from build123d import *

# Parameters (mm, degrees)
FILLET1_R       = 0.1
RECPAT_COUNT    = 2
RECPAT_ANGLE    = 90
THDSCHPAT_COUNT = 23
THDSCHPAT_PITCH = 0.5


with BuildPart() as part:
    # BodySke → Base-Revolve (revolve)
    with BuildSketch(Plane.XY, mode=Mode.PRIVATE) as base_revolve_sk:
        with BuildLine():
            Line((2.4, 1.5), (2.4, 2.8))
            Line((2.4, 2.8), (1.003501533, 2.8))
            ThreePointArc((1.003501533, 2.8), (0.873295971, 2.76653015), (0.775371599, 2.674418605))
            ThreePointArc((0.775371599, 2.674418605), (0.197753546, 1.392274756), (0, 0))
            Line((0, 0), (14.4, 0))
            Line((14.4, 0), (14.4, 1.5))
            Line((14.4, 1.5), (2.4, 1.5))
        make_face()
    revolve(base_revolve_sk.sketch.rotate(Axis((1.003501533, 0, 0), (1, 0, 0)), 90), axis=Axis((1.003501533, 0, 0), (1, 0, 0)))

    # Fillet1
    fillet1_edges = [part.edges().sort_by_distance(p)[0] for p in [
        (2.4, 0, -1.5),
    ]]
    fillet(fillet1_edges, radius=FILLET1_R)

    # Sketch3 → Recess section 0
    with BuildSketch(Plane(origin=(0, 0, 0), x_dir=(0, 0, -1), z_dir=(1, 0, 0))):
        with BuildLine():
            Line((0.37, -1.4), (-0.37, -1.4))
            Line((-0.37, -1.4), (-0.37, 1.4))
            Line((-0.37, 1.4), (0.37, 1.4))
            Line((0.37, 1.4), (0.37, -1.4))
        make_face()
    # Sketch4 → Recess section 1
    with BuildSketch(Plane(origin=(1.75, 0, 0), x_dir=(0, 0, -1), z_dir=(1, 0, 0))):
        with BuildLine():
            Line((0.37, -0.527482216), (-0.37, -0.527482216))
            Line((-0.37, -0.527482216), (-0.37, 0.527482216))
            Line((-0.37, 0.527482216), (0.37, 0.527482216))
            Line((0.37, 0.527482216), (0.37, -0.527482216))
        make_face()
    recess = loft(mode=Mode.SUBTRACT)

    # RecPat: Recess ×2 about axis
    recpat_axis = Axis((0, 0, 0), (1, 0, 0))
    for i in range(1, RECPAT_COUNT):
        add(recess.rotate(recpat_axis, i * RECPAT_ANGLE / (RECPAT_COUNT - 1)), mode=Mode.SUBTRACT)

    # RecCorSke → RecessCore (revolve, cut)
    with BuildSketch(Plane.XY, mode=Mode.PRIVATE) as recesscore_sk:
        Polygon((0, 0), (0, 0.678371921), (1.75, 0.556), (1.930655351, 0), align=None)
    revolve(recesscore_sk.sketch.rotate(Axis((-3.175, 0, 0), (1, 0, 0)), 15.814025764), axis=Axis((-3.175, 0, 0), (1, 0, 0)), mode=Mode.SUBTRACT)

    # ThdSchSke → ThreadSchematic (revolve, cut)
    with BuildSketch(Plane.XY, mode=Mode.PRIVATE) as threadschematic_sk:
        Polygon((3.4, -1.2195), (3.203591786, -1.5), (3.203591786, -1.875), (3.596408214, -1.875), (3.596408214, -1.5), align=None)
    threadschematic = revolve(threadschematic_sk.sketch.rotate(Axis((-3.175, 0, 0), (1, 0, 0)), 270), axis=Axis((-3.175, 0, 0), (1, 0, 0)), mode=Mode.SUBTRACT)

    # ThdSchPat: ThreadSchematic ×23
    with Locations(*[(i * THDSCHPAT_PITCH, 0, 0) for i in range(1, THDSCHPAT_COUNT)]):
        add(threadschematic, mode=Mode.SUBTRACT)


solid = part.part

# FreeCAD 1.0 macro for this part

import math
import FreeCAD as App
import Part
import Sketcher
from FreeCAD import Vector
Q = App.Units.Quantity


def edges_at(feature, points):
    """Names of the edges that pass closest to the given points."""
    edges = feature.Shape.Edges
    near = lambda p: min(range(len(edges)), key=lambda i: edges[i].distToShape(Part.Vertex(*p))[0])
    return sorted({f"Edge{near(p) + 1}" for p in points})

doc = App.newDocument("Part")
body = doc.addObject("PartDesign::Body", "Body")

sketch1 = body.newObject("Sketcher::SketchObject", "Sketch")
sketch1.AttachmentSupport = (doc.getObject("XY_Plane"), [""])
sketch1.MapMode = "FlatFace"
sketch1.addGeometry([
    Part.LineSegment(Vector(2.4, 1.5, 0), Vector(2.4, 2.8, 0)),
    Part.LineSegment(Vector(2.4, 2.8, 0), Vector(1.003502, 2.8, 0)),
    Part.ArcOfCircle(Part.Circle(Vector(1.003502, 2.53, 0), Vector(0, 0, 1), 0.27), math.radians(90), math.radians(147.663974)),
    Part.ArcOfCircle(Part.Circle(Vector(5, 0, 0), Vector(0, 0, 1), 5), math.radians(147.663974), math.radians(180)),
    Part.LineSegment(Vector(0, 0, 0), Vector(14.4, 0, 0)),
    Part.LineSegment(Vector(14.4, 0, 0), Vector(14.4, 1.5, 0)),
    Part.LineSegment(Vector(14.4, 1.5, 0), Vector(2.4, 1.5, 0)),
], False)
sketch1.addConstraint([
    Sketcher.Constraint("Coincident", 0, 2, 1, 1),
    Sketcher.Constraint("Tangent", 1, 2, 2, 1),
    Sketcher.Constraint("Tangent", 2, 2, 3, 1),
    Sketcher.Constraint("Coincident", 3, 2, 4, 1),
    Sketcher.Constraint("Coincident", 4, 2, 5, 1),
    Sketcher.Constraint("Coincident", 5, 2, 6, 1),
    Sketcher.Constraint("Coincident", 6, 2, 0, 1),
    Sketcher.Constraint("Vertical", 0),
    Sketcher.Constraint("Horizontal", 1),
    Sketcher.Constraint("Horizontal", 4),
    Sketcher.Constraint("Vertical", 5),
    Sketcher.Constraint("Horizontal", 6),
    Sketcher.Constraint("Coincident", 3, 2, -1, 1),
    Sketcher.Constraint("PointOnObject", 3, 3, -1),
    Sketcher.Constraint("Radius", 3, Q("5 mm")),
    Sketcher.Constraint("DistanceX", 6, 2, 6, 1, Q("12 mm")),
    Sketcher.Constraint("Radius", 2, Q("0.27 mm")),
    Sketcher.Constraint("DistanceX", 4, 1, 4, 2, Q("14.4 mm")),
    Sketcher.Constraint("DistanceY", 0, 1, 0, 2, Q("1.3 mm")),
    Sketcher.Constraint("DistanceY", 5, 1, 5, 2, Q("1.5 mm")),
])
revolution = body.newObject("PartDesign::Revolution", "Revolution")
revolution.Profile = sketch1
revolution.ReferenceAxis = (sketch1, ["H_Axis"])
revolution.Angle = 360
doc.recompute()

fillet = body.newObject("PartDesign::Fillet", "Fillet")
fillet.Base = (revolution, edges_at(revolution, [(2.4, 0, -1.5)]))
fillet.Radius = 0.1

sketch2 = body.newObject("Sketcher::SketchObject", "Sketch001")
sketch2.AttachmentSupport = (doc.getObject("YZ_Plane"), [""])
sketch2.MapMode = "FlatFace"
sketch2.addGeometry([
    Part.LineSegment(Vector(-1.4, 0.37, 0), Vector(-1.4, -0.37, 0)),
    Part.LineSegment(Vector(-1.4, -0.37, 0), Vector(1.4, -0.37, 0)),
    Part.LineSegment(Vector(1.4, -0.37, 0), Vector(1.4, 0.37, 0)),
    Part.LineSegment(Vector(1.4, 0.37, 0), Vector(-1.4, 0.37, 0)),
], False)
sketch2.addConstraint([
    Sketcher.Constraint("Coincident", 0, 2, 1, 1),
    Sketcher.Constraint("Coincident", 1, 2, 2, 1),
    Sketcher.Constraint("Coincident", 2, 2, 3, 1),
    Sketcher.Constraint("Coincident", 3, 2, 0, 1),
    Sketcher.Constraint("Vertical", 0),
    Sketcher.Constraint("Horizontal", 1),
    Sketcher.Constraint("Vertical", 2),
    Sketcher.Constraint("Horizontal", 3),
    Sketcher.Constraint("Symmetric", 0, 2, 2, 2, -1, 1),
    Sketcher.Constraint("DistanceX", 1, 1, 1, 2, Q("2.8 mm")),
    Sketcher.Constraint("DistanceY", 0, 2, 0, 1, Q("0.74 mm")),
])

sketch3 = body.newObject("Sketcher::SketchObject", "Sketch002")
sketch3.AttachmentSupport = (doc.getObject("YZ_Plane"), [""])
sketch3.MapMode = "FlatFace"
sketch3.AttachmentOffset = App.Placement(Vector(0, 0, 1.75), App.Rotation())
sketch3.addGeometry([
    Part.LineSegment(Vector(-0.527482, 0.37, 0), Vector(-0.527482, -0.37, 0)),
    Part.LineSegment(Vector(-0.527482, -0.37, 0), Vector(0.527482, -0.37, 0)),
    Part.LineSegment(Vector(0.527482, -0.37, 0), Vector(0.527482, 0.37, 0)),
    Part.LineSegment(Vector(0.527482, 0.37, 0), Vector(-0.527482, 0.37, 0)),
], False)
sketch3.addConstraint([
    Sketcher.Constraint("Coincident", 0, 2, 1, 1),
    Sketcher.Constraint("Coincident", 1, 2, 2, 1),
    Sketcher.Constraint("Coincident", 2, 2, 3, 1),
    Sketcher.Constraint("Coincident", 3, 2, 0, 1),
    Sketcher.Constraint("Vertical", 0),
    Sketcher.Constraint("Horizontal", 1),
    Sketcher.Constraint("Vertical", 2),
    Sketcher.Constraint("Horizontal", 3),
    Sketcher.Constraint("Symmetric", 0, 2, 2, 2, -1, 1),
    Sketcher.Constraint("DistanceY", 0, 2, 0, 1, Q("0.74 mm")),
    Sketcher.Constraint("DistanceX", 1, 1, 1, 2, Q("1.054964 mm")),
])

subtractiveloft = body.newObject("PartDesign::SubtractiveLoft", "SubtractiveLoft")
subtractiveloft.Profile = sketch2
subtractiveloft.Sections = [sketch3]
doc.recompute()

polarpattern = body.newObject("PartDesign::PolarPattern", "PolarPattern")
polarpattern.Originals = [subtractiveloft]
polarpattern.Axis = (doc.getObject("X_Axis"), [""])
polarpattern.Angle = 90
polarpattern.Occurrences = 2
body.Tip = polarpattern

sketch4 = body.newObject("Sketcher::SketchObject", "Sketch003")
sketch4.AttachmentSupport = (doc.getObject("XY_Plane"), [""])
sketch4.MapMode = "FlatFace"
sketch4.addGeometry([
    Part.LineSegment(Vector(0, 0.678372, 0), Vector(0, 0, 0)),
    Part.LineSegment(Vector(0, 0, 0), Vector(1.930655, 0, 0)),
    Part.LineSegment(Vector(1.930655, 0, 0), Vector(1.75, 0.556, 0)),
    Part.LineSegment(Vector(1.75, 0.556, 0), Vector(0, 0.678372, 0)),
], False)
sketch4.addConstraint([
    Sketcher.Constraint("Coincident", 0, 2, 1, 1),
    Sketcher.Constraint("Coincident", 1, 2, 2, 1),
    Sketcher.Constraint("Coincident", 2, 2, 3, 1),
    Sketcher.Constraint("Coincident", 3, 2, 0, 1),
    Sketcher.Constraint("Vertical", 0),
    Sketcher.Constraint("Horizontal", 1),
    Sketcher.Constraint("Coincident", 0, 2, -1, 1),
    Sketcher.Constraint("Angle", 2, Q("108 deg")),
    Sketcher.Constraint("Angle", 3, Q("176 deg")),
    Sketcher.Constraint("DistanceX", -1, 1, 2, 2, Q("1.75 mm")),
    Sketcher.Constraint("DistanceY", -1, 1, 2, 2, Q("0.556 mm")),
])
groove = body.newObject("PartDesign::Groove", "Groove")
groove.Profile = sketch4
groove.ReferenceAxis = (sketch4, ["H_Axis"])
groove.Angle = 360

sketch5 = body.newObject("Sketcher::SketchObject", "Sketch004")
sketch5.AttachmentSupport = (doc.getObject("XY_Plane"), [""])
sketch5.MapMode = "FlatFace"
sketch5.addGeometry([
    Part.LineSegment(Vector(3.4, -1.2195, 0), Vector(3.203592, -1.5, 0)),
    Part.LineSegment(Vector(3.203592, -1.5, 0), Vector(3.203592, -1.875, 0)),
    Part.LineSegment(Vector(3.203592, -1.875, 0), Vector(3.596408, -1.875, 0)),
    Part.LineSegment(Vector(3.596408, -1.875, 0), Vector(3.596408, -1.5, 0)),
    Part.LineSegment(Vector(3.596408, -1.5, 0), Vector(3.4, -1.2195, 0)),
], False)
sketch5.addConstraint([
    Sketcher.Constraint("Coincident", 0, 2, 1, 1),
    Sketcher.Constraint("Coincident", 1, 2, 2, 1),
    Sketcher.Constraint("Coincident", 2, 2, 3, 1),
    Sketcher.Constraint("Coincident", 3, 2, 4, 1),
    Sketcher.Constraint("Coincident", 4, 2, 0, 1),
    Sketcher.Constraint("Vertical", 1),
    Sketcher.Constraint("Horizontal", 2),
    Sketcher.Constraint("Vertical", 3),
    Sketcher.Constraint("Horizontal", 0, 2, 3, 2),
    Sketcher.Constraint("Equal", 0, 4),
    Sketcher.Constraint("Angle", 0, Q("-125 deg")),
    Sketcher.Constraint("DistanceY", 0, 2, -1, 1, Q("1.5 mm")),
    Sketcher.Constraint("DistanceX", -1, 1, 4, 2, Q("3.4 mm")),
    Sketcher.Constraint("DistanceY", 1, 2, 1, 1, Q("0.375 mm")),
    Sketcher.Constraint("DistanceY", 4, 2, -1, 1, Q("1.2195 mm")),
])
groove2 = body.newObject("PartDesign::Groove", "Groove001")
groove2.Profile = sketch5
groove2.ReferenceAxis = (sketch5, ["H_Axis"])
groove2.Angle = 360
doc.recompute()

linearpattern = body.newObject("PartDesign::LinearPattern", "LinearPattern")
linearpattern.Originals = [groove2]
linearpattern.Direction = (doc.getObject("X_Axis"), [""])
linearpattern.Mode = "offset"
linearpattern.Offset = 0.5
linearpattern.Occurrences = 23
body.Tip = linearpattern

doc.recompute()
